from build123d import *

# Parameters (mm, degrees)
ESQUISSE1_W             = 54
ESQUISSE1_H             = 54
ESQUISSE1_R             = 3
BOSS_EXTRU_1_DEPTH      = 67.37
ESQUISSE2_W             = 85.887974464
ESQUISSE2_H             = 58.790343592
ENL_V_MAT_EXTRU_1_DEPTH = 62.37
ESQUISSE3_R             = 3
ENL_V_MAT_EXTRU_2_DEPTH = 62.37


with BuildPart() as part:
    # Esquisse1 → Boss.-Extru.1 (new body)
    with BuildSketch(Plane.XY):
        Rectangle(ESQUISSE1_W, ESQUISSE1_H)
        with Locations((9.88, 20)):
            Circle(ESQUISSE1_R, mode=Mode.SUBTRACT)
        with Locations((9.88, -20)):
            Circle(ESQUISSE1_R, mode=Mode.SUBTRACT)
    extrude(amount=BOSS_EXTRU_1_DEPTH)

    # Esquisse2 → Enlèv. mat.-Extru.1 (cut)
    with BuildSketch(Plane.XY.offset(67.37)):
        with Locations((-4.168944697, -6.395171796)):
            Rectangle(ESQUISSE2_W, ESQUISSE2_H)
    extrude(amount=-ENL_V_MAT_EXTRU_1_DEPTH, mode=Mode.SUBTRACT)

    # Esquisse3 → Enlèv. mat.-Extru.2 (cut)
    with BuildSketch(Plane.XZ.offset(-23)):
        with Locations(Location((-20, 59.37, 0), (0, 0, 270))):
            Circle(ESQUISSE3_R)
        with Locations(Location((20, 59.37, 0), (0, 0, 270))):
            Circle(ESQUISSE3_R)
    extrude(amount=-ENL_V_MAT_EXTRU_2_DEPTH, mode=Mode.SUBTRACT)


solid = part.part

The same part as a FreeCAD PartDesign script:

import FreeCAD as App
import Part
import Sketcher

V = App.Vector
Q = App.Units.Quantity


def add_polygon(sketch, points):
    """Adds a closed chain of lines whose ends are joined by coincident constraints."""
    first, n = sketch.GeometryCount, len(points)
    for a, b in zip(points, points[1:] + points[:1]):
        sketch.addGeometry(Part.LineSegment(App.Vector(*a, 0), App.Vector(*b, 0)), False)
    for i in range(n):
        sketch.addConstraint(Sketcher.Constraint("Coincident", first + i, 2, first + (i + 1) % n, 1))

doc = App.newDocument("Part")
params = doc.addObject("Spreadsheet::Sheet", "Params")
for row, (alias, value) in enumerate([
    ("sketch1_diameter", "6 mm"),
    ("sketch1_width", "54 mm"),
    ("pad1_length", "67.37 mm"),
    ("pocket1_length", "62.37 mm"),
    ("sketch3_diameter", "6 mm"),
    ("pocket2_length", "62.37 mm"),
], start=1):
    params.set(f"A{row}", alias)
    params.set(f"B{row}", "=" + value)
    params.setAlias(f"B{row}", alias)

body = doc.addObject("PartDesign::Body", "Body")

# Sketch on XY plane
sketch1 = body.newObject("Sketcher::SketchObject", "Sketch")
sketch1.AttachmentSupport = (doc.getObject("XY_Plane"), [""])
sketch1.MapMode = "FlatFace"
add_polygon(sketch1, [(-27, 27), (-27, -27), (27, -27), (27, 27)])  # lines 0-3
sketch1.addGeometry(Part.Circle(V(9.88, -20, 0), V(0, 0, 1), 3), False)  # 4
sketch1.addGeometry(Part.Circle(V(9.88, 20, 0), V(0, 0, 1), 3), False)  # 5
sketch1.addConstraint([
    Sketcher.Constraint("Vertical", 0),
    Sketcher.Constraint("Horizontal", 1),
    Sketcher.Constraint("Vertical", 2),
    Sketcher.Constraint("Horizontal", 3),
    Sketcher.Constraint("Equal", 4, 5),
    Sketcher.Constraint("Symmetric", 0, 2, 2, 2, -1, 1),
    Sketcher.Constraint("Symmetric", 4, 3, 5, 3, -1),
    Sketcher.Constraint("Equal", 3, 0),
    Sketcher.Constraint("Diameter", 4, Q("6 mm")),
    Sketcher.Constraint("DistanceX", 1, 1, 1, 2, Q("54 mm")),
    Sketcher.Constraint("DistanceY", 4, 3, -1, 1, Q("20 mm")),
    Sketcher.Constraint("DistanceX", -1, 1, 4, 3, Q("9.88 mm")),
])
sketch1.setExpression("Constraints[12]", "Params.sketch1_diameter")
sketch1.setExpression("Constraints[13]", "Params.sketch1_width")
pad1 = body.newObject("PartDesign::Pad", "Pad")
pad1.Profile = sketch1
pad1.setExpression("Length", "Params.pad1_length")

# Sketch on XY plane
sketch2 = body.newObject("Sketcher::SketchObject", "Sketch001")
sketch2.AttachmentSupport = (doc.getObject("XY_Plane"), [""])
sketch2.MapMode = "FlatFace"
sketch2.AttachmentOffset = App.Placement(V(0, 0, 67.37), App.Rotation())
add_polygon(sketch2, [(-47.112932, 23), (-47.112932, -35.790344), (38.775043, -35.790344), (38.775043, 23)])  # lines 0-3
sketch2.addConstraint([
    Sketcher.Constraint("Vertical", 0),
    Sketcher.Constraint("Horizontal", 1),
    Sketcher.Constraint("Vertical", 2),
    Sketcher.Constraint("Horizontal", 3),
    Sketcher.Constraint("DistanceY", -1, 1, 2, 2, Q("23 mm")),
    Sketcher.Constraint("DistanceX", 1, 1, 1, 2, Q("85.887974 mm")),
    Sketcher.Constraint("DistanceY", 0, 2, 0, 1, Q("58.790344 mm")),
    Sketcher.Constraint("DistanceX", 0, 2, -1, 1, Q("47.112932 mm")),
])
pocket1 = body.newObject("PartDesign::Pocket", "Pocket")
pocket1.Profile = sketch2
pocket1.setExpression("Length", "Params.pocket1_length")

# Sketch on XZ plane
sketch3 = body.newObject("Sketcher::SketchObject", "Sketch002")
sketch3.AttachmentSupport = (doc.getObject("XZ_Plane"), [""])
sketch3.MapMode = "FlatFace"
sketch3.AttachmentOffset = App.Placement(V(0, 0, -23), App.Rotation())
sketch3.addGeometry([
    Part.Circle(V(-20, 59.37, 0), V(0, 0, 1), 3),
    Part.Circle(V(20, 59.37, 0), V(0, 0, 1), 3),
], False)
sketch3.addConstraint([
    Sketcher.Constraint("Equal", 0, 1),
    Sketcher.Constraint("Symmetric", 0, 3, 1, 3, -2),
    Sketcher.Constraint("Diameter", 0, Q("6 mm")),
    Sketcher.Constraint("DistanceX", 0, 3, -1, 1, Q("20 mm")),
    Sketcher.Constraint("DistanceY", -1, 1, 0, 3, Q("59.37 mm")),
])
sketch3.setExpression("Constraints[2]", "Params.sketch3_diameter")
pocket2 = body.newObject("PartDesign::Pocket", "Pocket001")
pocket2.Profile = sketch3
pocket2.setExpression("Length", "Params.pocket2_length")

doc.recompute()
